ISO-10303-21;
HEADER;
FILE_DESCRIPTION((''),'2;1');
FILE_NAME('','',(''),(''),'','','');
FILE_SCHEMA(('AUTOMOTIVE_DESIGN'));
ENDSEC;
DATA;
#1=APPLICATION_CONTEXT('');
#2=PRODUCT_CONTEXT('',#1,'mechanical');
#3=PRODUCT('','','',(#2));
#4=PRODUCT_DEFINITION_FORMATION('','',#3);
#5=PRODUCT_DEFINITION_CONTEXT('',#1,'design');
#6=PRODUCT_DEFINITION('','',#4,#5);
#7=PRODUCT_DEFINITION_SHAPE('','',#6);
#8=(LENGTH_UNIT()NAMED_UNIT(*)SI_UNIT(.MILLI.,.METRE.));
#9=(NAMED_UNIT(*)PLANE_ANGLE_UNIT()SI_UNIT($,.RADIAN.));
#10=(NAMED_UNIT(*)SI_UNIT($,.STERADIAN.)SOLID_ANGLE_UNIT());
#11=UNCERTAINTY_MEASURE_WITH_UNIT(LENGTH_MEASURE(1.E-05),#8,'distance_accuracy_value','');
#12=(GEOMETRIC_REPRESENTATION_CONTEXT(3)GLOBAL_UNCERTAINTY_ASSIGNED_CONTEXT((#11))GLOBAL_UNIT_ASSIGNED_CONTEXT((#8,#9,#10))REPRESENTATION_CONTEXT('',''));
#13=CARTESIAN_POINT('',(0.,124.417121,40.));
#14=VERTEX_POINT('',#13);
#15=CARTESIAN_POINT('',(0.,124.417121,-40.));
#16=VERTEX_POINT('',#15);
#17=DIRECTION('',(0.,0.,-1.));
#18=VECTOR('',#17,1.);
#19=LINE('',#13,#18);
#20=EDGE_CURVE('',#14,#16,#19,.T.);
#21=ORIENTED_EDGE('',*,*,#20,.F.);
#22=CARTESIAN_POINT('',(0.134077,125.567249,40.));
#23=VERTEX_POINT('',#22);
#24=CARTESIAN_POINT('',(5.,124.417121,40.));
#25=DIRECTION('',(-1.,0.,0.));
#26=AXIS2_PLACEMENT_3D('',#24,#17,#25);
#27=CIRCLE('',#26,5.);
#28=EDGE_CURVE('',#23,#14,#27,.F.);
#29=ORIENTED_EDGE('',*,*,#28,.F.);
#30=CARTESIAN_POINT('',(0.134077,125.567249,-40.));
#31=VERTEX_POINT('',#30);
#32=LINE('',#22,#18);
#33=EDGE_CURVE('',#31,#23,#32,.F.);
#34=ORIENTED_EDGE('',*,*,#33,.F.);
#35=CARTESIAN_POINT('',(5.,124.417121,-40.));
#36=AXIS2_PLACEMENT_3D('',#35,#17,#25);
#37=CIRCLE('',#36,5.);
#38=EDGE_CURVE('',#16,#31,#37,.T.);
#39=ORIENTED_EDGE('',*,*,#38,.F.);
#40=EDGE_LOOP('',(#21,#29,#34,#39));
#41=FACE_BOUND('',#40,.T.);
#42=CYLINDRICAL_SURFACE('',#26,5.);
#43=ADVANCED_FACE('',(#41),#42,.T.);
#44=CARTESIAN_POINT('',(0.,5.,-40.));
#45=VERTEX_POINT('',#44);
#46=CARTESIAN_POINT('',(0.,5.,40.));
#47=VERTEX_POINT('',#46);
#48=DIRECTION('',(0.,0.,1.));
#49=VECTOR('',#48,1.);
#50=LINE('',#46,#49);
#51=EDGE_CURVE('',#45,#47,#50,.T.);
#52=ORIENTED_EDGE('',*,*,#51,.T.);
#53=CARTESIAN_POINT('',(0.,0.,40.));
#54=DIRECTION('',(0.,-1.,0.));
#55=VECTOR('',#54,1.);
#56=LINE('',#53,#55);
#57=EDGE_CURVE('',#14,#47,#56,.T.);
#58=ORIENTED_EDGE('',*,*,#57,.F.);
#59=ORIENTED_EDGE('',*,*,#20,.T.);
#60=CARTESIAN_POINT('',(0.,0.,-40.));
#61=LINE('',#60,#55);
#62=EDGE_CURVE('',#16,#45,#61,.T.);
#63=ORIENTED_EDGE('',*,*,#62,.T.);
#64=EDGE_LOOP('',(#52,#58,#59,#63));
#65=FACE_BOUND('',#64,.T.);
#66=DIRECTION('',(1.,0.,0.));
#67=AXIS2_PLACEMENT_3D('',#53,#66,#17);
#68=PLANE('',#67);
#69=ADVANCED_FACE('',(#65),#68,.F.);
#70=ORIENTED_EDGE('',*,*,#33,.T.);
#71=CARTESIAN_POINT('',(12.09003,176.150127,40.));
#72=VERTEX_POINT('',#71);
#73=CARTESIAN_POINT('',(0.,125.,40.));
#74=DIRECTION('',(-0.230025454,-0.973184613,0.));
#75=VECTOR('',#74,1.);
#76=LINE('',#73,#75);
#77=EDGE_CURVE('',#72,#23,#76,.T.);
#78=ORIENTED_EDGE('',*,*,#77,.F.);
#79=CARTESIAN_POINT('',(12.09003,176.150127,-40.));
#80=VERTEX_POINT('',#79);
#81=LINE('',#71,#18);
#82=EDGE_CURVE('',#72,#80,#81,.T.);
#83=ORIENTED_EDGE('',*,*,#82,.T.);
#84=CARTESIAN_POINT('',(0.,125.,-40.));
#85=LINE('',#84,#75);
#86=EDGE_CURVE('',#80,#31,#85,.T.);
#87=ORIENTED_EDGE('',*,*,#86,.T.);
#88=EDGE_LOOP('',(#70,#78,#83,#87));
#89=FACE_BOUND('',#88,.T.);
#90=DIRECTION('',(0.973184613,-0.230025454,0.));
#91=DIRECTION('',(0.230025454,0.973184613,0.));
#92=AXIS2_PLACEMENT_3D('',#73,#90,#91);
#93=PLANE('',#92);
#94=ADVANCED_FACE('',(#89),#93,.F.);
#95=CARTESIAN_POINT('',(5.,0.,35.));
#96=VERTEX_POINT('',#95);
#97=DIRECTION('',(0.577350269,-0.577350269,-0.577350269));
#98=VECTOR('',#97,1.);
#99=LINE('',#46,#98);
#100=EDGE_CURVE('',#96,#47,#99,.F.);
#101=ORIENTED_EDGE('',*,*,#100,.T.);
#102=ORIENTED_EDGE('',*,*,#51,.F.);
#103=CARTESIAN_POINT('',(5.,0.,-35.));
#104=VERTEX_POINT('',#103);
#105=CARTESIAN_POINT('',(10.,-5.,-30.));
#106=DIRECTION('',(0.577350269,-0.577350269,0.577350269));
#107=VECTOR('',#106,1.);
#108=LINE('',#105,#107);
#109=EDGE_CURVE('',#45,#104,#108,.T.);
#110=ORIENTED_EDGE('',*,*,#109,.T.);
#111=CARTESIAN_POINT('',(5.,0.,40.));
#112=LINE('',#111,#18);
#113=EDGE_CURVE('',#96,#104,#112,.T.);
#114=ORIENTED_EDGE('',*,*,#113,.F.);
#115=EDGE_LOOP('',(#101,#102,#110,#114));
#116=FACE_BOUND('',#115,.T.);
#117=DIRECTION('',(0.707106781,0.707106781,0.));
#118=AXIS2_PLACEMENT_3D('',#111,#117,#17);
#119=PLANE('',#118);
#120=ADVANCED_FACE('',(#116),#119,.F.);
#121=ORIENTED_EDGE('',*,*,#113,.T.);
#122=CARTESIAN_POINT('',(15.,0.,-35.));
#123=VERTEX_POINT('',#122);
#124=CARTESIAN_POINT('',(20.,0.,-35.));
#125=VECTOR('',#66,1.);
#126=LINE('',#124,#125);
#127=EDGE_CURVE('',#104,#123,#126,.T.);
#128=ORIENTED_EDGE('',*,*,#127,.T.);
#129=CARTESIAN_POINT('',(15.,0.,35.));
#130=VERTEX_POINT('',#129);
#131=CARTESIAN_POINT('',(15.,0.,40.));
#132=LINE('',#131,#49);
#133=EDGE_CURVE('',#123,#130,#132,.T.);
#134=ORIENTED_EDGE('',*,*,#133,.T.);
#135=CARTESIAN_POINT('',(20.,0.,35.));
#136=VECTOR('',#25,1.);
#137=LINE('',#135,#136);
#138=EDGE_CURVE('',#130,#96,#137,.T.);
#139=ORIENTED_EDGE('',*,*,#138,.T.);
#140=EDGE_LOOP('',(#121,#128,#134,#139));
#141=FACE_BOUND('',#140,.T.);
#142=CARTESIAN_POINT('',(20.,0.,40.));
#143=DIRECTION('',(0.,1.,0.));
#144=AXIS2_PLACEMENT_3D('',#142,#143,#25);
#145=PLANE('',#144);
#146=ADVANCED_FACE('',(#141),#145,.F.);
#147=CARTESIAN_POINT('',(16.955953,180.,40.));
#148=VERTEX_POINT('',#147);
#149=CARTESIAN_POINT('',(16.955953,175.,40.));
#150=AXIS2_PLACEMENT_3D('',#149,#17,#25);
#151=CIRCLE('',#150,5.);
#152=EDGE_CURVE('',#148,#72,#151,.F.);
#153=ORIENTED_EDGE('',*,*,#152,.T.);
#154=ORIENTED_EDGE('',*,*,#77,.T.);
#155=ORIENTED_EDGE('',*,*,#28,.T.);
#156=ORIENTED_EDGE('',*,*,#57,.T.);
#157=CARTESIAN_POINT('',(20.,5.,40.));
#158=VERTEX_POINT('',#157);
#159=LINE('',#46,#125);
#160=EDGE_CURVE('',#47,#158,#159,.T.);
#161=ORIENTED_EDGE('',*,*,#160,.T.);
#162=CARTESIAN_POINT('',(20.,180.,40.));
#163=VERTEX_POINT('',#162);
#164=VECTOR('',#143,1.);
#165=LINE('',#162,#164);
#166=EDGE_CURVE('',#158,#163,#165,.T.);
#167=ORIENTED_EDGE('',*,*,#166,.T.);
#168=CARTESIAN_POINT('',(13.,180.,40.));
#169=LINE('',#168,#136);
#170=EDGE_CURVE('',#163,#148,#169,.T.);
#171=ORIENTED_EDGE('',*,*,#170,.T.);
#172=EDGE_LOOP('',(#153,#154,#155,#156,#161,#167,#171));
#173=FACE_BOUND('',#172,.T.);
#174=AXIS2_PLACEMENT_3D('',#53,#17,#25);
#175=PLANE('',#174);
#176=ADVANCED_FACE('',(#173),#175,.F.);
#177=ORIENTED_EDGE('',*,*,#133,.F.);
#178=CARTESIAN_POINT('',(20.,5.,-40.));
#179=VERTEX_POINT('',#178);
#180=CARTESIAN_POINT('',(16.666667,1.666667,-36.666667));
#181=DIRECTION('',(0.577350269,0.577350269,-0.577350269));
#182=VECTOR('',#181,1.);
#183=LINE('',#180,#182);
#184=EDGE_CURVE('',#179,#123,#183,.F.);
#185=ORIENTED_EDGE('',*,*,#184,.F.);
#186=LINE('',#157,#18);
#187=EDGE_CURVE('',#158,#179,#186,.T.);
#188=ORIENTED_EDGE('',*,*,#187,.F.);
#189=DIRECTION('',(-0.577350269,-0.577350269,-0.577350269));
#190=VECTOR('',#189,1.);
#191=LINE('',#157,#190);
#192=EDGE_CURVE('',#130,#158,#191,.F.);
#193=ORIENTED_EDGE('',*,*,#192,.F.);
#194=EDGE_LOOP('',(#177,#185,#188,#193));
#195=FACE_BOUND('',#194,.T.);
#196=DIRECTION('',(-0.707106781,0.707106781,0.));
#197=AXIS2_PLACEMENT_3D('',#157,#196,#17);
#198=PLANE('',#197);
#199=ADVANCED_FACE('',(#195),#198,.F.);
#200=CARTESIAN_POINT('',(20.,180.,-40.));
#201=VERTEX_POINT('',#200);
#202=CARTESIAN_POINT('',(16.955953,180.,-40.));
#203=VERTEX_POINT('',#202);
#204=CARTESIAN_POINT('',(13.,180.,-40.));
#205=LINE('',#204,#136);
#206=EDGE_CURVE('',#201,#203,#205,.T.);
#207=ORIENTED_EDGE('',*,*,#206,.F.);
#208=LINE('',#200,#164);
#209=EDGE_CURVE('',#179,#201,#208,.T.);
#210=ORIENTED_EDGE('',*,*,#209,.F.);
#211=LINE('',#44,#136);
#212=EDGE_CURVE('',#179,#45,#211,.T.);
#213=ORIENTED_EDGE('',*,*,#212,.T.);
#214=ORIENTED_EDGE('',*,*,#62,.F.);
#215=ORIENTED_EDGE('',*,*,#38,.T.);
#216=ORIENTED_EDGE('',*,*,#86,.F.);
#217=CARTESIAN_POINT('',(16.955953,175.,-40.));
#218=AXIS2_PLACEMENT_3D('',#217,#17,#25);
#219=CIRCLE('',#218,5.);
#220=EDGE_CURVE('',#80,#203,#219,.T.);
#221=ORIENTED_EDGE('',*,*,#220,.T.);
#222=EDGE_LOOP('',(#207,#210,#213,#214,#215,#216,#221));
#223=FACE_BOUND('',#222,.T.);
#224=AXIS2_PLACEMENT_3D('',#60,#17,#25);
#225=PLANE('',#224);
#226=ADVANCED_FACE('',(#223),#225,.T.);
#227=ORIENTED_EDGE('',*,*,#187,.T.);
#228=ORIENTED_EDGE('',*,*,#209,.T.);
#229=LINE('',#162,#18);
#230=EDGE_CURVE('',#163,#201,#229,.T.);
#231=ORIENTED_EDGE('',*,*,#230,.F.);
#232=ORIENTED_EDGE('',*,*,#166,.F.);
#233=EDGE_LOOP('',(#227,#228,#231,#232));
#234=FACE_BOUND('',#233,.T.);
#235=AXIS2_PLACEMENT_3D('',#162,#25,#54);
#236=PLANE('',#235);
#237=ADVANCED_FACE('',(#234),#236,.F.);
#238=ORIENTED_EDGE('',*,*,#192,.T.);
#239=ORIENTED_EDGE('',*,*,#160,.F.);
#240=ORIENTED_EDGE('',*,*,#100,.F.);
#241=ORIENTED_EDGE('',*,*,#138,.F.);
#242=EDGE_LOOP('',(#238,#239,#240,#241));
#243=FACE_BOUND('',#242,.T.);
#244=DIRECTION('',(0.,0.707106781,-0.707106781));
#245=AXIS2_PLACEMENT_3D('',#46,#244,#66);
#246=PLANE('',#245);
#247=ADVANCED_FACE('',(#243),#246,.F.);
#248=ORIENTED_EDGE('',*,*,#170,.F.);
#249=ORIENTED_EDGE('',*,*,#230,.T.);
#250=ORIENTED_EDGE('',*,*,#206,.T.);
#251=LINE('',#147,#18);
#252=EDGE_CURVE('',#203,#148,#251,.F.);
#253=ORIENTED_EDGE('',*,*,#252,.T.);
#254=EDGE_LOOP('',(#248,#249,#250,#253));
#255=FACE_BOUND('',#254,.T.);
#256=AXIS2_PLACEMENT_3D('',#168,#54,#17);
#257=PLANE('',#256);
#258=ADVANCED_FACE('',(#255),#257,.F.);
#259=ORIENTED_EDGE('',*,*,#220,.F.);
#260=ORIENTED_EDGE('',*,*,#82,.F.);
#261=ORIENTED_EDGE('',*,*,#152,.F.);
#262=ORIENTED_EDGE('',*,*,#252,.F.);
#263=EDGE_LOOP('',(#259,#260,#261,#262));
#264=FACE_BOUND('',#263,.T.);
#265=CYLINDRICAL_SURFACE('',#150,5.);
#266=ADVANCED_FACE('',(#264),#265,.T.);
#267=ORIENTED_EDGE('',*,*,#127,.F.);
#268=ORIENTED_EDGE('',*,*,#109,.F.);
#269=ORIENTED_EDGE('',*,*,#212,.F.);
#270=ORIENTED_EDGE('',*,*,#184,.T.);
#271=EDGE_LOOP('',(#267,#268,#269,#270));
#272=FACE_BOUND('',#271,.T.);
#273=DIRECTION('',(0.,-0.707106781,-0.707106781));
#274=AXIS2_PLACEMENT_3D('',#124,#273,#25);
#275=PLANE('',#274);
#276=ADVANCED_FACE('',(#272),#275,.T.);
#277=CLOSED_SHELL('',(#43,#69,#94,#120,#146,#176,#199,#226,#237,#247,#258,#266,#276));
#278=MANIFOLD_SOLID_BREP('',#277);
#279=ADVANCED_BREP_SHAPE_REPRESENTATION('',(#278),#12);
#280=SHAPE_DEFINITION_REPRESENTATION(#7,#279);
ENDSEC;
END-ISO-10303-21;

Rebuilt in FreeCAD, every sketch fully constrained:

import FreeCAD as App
import Part
import Sketcher

V = App.Vector
Q = App.Units.Quantity


def edges_at(feature, points):
    """Names of the edges that pass closest to the given points."""
    edges = feature.Shape.Edges
    near = lambda p: min(range(len(edges)), key=lambda i: edges[i].distToShape(Part.Vertex(*p))[0])
    return sorted({f"Edge{near(p) + 1}" for p in points})


def add_polygon(sketch, points):
    """Adds a closed chain of lines whose ends are joined by coincident constraints."""
    first, n = sketch.GeometryCount, len(points)
    for a, b in zip(points, points[1:] + points[:1]):
        sketch.addGeometry(Part.LineSegment(App.Vector(*a, 0), App.Vector(*b, 0)), False)
    for i in range(n):
        sketch.addConstraint(Sketcher.Constraint("Coincident", first + i, 2, first + (i + 1) % n, 1))

doc = App.newDocument("Part")
params = doc.addObject("Spreadsheet::Sheet", "Params")
for row, (alias, value) in enumerate([
    ("sketch1_width", "20 mm"),
    ("sketch1_width2", "7 mm"),
    ("sketch1_height", "125 mm"),
    ("sketch1_height2", "180 mm"),
    ("pad1_length", "80 mm"),
    ("chamfer_size", "5 mm"),
    ("fillet_radius", "5 mm"),
], start=1):
    params.set(f"A{row}", alias)
    params.set(f"B{row}", "=" + value)
    params.setAlias(f"B{row}", alias)

body = doc.addObject("PartDesign::Body", "Body")

# Sketch on XY plane
sketch1 = doc.addObject("Sketcher::SketchObject", "Sketch")
body.addObject(sketch1)
sketch1.AttachmentSupport = (doc.XY_Plane, [""])
sketch1.MapMode = "FlatFace"
add_polygon(sketch1, [(0, 125), (0, 0), (20, 0), (20, 180), (13, 180)])  # lines 0-4
sketch1.addConstraint(Sketcher.Constraint("Vertical", 0))
sketch1.addConstraint(Sketcher.Constraint("Horizontal", 1))
sketch1.addConstraint(Sketcher.Constraint("Vertical", 2))
sketch1.addConstraint(Sketcher.Constraint("Horizontal", 3))
sketch1.addConstraint(Sketcher.Constraint("Coincident", 0, 2, -1, 1))
sketch1.addConstraint(Sketcher.Constraint("DistanceX", 1, 1, 1, 2, Q("20 mm")))
sketch1.addConstraint(Sketcher.Constraint("DistanceX", 3, 2, 3, 1, Q("7 mm")))
sketch1.addConstraint(Sketcher.Constraint("DistanceY", 0, 2, 0, 1, Q("125 mm")))
sketch1.addConstraint(Sketcher.Constraint("DistanceY", 2, 1, 2, 2, Q("180 mm")))
sketch1.setExpression("Constraints[10]", "Params.sketch1_width")
sketch1.setExpression("Constraints[11]", "Params.sketch1_width2")
sketch1.setExpression("Constraints[12]", "Params.sketch1_height")
sketch1.setExpression("Constraints[13]", "Params.sketch1_height2")
pad1 = doc.addObject("PartDesign::Pad", "Pad")
body.addObject(pad1)
pad1.Profile = sketch1
pad1.setExpression("Length", "Params.pad1_length")
pad1.Midplane = True
doc.recompute()

chamfer = doc.addObject("PartDesign::Chamfer", "Chamfer")
body.addObject(chamfer)
chamfer.Base = (pad1, edges_at(pad1, [
    (10, 0, 40),
    (10, 0, -40),
    (0, 0, 0),
    (20, 0, 0),
]))
chamfer.setExpression("Size", "Params.chamfer_size")
doc.recompute()

fillet = doc.addObject("PartDesign::Fillet", "Fillet")
body.addObject(fillet)
fillet.Base = (chamfer, edges_at(chamfer, [(0, 125, 0), (13, 180, 0)]))
fillet.setExpression("Radius", "Params.fillet_radius")

doc.recompute()
